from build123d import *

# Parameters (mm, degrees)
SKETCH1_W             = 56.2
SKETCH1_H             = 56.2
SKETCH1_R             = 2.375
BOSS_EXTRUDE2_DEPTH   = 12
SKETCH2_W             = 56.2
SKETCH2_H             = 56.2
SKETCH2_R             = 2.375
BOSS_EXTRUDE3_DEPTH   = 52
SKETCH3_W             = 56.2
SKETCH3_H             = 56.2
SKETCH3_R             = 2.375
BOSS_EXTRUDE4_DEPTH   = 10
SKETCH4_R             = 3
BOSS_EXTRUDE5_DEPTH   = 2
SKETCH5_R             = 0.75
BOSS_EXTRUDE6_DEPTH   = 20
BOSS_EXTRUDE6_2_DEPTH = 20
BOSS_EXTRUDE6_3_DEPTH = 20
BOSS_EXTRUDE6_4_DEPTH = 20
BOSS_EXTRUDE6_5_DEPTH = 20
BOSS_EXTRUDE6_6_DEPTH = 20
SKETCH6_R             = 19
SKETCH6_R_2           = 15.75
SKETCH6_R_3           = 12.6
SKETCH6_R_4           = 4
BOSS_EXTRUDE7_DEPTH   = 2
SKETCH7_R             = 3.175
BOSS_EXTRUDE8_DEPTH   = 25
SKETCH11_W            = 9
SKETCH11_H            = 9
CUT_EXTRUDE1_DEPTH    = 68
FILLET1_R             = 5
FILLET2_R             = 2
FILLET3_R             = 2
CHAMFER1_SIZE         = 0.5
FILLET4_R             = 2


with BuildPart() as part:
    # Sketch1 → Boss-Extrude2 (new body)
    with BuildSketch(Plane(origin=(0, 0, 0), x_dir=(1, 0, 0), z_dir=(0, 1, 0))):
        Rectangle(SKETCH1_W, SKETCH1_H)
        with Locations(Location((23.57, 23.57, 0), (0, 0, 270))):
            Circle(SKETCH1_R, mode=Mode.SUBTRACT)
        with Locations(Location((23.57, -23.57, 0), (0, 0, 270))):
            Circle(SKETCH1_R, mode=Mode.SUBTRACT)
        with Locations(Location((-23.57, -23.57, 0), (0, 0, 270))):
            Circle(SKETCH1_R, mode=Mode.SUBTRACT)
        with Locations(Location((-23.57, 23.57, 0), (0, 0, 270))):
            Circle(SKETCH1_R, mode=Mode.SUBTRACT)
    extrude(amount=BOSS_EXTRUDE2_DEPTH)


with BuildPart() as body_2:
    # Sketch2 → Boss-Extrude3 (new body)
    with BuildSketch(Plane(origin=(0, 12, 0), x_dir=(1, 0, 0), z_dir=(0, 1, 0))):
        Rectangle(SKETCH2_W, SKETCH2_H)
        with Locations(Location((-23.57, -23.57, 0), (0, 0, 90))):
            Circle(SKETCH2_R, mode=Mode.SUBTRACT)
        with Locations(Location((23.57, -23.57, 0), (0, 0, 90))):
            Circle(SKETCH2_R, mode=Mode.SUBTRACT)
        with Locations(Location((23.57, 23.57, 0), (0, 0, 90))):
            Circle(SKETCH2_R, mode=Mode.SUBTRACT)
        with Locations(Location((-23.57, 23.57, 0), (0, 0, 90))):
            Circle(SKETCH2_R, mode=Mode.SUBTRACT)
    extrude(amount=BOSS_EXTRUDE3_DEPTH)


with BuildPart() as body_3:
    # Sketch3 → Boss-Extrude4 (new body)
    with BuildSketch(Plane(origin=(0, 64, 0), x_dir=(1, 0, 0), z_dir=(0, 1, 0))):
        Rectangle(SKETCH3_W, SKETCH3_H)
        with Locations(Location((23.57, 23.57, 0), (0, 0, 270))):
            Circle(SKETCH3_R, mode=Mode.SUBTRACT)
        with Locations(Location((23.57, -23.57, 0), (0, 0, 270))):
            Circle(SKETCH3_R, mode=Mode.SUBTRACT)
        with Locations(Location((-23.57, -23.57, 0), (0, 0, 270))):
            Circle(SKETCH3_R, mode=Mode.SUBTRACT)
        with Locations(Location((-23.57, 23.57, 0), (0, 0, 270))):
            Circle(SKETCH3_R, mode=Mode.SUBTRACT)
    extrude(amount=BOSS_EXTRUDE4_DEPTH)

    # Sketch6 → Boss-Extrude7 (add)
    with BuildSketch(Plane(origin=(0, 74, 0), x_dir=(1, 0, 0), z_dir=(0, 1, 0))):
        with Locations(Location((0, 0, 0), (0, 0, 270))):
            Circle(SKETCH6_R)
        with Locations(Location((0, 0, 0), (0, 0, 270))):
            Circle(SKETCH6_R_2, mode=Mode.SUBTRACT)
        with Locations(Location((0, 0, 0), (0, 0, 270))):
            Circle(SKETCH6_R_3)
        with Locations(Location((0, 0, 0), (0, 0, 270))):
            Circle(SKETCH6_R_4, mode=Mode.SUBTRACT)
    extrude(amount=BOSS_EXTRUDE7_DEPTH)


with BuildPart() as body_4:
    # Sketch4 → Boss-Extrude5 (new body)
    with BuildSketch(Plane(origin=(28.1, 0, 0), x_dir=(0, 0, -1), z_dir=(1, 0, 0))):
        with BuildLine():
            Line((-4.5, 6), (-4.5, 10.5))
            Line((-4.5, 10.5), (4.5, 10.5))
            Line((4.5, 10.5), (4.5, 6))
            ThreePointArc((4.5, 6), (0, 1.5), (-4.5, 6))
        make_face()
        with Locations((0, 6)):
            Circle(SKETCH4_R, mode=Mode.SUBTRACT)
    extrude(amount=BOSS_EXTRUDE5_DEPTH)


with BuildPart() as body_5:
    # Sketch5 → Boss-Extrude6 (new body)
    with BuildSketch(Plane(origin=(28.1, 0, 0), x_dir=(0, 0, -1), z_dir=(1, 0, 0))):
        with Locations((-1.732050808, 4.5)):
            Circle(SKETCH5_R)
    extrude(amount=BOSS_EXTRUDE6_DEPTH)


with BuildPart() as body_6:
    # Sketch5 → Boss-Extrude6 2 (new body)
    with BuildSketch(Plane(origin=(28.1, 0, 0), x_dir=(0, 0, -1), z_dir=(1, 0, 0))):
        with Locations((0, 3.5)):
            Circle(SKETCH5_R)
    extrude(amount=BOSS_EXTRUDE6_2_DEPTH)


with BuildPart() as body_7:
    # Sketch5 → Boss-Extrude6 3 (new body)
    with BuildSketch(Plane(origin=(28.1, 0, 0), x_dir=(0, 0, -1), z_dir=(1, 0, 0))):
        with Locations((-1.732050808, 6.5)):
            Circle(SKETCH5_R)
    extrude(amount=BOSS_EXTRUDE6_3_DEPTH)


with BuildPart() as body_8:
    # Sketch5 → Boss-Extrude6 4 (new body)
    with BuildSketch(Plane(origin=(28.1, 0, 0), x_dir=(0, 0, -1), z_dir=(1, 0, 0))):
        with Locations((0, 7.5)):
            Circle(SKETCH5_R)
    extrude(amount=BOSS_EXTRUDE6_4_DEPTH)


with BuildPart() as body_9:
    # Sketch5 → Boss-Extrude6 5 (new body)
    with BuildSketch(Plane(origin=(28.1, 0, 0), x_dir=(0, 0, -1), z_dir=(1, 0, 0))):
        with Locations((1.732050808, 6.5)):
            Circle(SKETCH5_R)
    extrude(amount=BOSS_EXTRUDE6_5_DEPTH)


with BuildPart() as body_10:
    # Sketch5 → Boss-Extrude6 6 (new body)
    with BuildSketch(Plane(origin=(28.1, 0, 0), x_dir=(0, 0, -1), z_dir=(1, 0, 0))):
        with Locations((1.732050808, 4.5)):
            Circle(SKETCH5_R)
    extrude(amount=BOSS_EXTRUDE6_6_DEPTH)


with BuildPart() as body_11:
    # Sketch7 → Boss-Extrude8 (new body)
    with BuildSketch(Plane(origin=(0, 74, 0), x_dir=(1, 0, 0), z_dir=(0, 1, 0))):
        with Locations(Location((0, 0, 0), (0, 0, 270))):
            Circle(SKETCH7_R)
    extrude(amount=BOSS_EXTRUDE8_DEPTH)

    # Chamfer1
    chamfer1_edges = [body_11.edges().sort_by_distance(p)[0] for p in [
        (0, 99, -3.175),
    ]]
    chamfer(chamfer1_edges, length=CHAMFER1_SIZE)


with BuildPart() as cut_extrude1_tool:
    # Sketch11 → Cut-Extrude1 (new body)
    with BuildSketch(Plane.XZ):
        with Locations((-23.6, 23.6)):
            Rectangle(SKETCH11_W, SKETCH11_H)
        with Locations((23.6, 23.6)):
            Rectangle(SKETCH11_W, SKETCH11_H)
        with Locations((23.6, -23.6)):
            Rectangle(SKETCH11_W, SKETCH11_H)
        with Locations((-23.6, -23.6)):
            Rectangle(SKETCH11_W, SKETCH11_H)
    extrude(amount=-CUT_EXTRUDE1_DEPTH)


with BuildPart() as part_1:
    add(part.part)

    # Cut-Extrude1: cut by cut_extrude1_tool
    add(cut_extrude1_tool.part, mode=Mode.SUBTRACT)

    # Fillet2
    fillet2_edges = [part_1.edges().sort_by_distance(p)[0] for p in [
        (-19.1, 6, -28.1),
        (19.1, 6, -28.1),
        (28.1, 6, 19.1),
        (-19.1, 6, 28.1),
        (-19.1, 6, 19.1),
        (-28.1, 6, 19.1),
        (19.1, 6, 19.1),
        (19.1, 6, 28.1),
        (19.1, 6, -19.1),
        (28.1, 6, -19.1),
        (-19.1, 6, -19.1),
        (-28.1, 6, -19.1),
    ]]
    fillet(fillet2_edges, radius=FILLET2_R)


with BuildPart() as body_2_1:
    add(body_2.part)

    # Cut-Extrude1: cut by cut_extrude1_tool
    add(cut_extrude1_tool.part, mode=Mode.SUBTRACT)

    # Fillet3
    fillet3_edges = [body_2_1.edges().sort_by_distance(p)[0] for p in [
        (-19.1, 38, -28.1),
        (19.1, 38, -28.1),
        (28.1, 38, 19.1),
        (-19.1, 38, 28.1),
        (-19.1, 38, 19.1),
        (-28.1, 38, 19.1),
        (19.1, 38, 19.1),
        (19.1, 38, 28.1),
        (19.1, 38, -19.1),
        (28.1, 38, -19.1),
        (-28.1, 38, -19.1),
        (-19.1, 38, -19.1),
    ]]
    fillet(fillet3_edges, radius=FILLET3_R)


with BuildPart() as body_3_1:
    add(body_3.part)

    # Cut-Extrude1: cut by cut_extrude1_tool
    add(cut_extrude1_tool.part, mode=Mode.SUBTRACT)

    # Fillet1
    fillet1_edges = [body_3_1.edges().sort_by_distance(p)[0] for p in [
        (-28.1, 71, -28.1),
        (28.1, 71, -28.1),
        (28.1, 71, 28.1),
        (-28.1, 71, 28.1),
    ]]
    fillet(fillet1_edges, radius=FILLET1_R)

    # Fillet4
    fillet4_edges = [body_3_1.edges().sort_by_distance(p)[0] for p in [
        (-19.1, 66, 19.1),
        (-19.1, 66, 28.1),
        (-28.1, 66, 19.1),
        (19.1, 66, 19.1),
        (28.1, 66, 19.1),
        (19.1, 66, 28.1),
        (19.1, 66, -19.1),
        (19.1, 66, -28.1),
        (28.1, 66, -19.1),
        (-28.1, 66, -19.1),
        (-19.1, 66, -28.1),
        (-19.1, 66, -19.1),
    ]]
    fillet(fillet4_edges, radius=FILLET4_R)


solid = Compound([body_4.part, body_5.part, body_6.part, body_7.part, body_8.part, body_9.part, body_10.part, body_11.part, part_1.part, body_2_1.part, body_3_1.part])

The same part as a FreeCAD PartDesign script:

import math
import FreeCAD as App
import Part
import Sketcher


def edges_at(feature, points):
    """Names of the edges that pass closest to the given points."""
    edges = feature.Shape.Edges
    near = lambda p: min(range(len(edges)), key=lambda i: edges[i].distToShape(Part.Vertex(*p))[0])
    return sorted({f"Edge{near(p) + 1}" for p in points})

doc = App.newDocument("Part")
body = doc.addObject("PartDesign::Body", "Body")

# Sketch on XZ plane
sketch1 = body.newObject("Sketcher::SketchObject", "Sketch")
sketch1.AttachmentSupport = (doc.getObject("XZ_Plane"), [""])
sketch1.MapMode = "FlatFace"
sketch1.addGeometry([
    Part.LineSegment(App.Vector(-28.1, -28.1, 0), App.Vector(-28.1, 28.1, 0)),  # 0
    Part.LineSegment(App.Vector(-28.1, 28.1, 0), App.Vector(28.1, 28.1, 0)),  # 1
    Part.LineSegment(App.Vector(28.1, 28.1, 0), App.Vector(28.1, -28.1, 0)),  # 2
    Part.LineSegment(App.Vector(28.1, -28.1, 0), App.Vector(-28.1, -28.1, 0)),  # 3
    Part.Circle(App.Vector(-23.6, 23.6, 0), App.Vector(0, 0, 1), 2.4),  # 4
    Part.Circle(App.Vector(23.6, 23.6, 0), App.Vector(0, 0, 1), 2.4),  # 5
    Part.Circle(App.Vector(-23.6, -23.6, 0), App.Vector(0, 0, 1), 2.4),  # 6
    Part.Circle(App.Vector(23.6, -23.6, 0), App.Vector(0, 0, 1), 2.4),  # 7
], False)
sketch1.addConstraint([
    Sketcher.Constraint("Coincident", 0, 2, 1, 1),
    Sketcher.Constraint("Coincident", 1, 2, 2, 1),
    Sketcher.Constraint("Coincident", 2, 2, 3, 1),
    Sketcher.Constraint("Coincident", 3, 2, 0, 1),
    Sketcher.Constraint("Vertical", 0),
    Sketcher.Constraint("Horizontal", 1),
    Sketcher.Constraint("Vertical", 2),
    Sketcher.Constraint("Horizontal", 3),
    Sketcher.Constraint("Equal", 4, 5),
    Sketcher.Constraint("Equal", 5, 6),
    Sketcher.Constraint("Equal", 6, 7),
    Sketcher.Constraint("Symmetric", 5, 3, 6, 3, -1, 1),
    Sketcher.Constraint("Symmetric", 4, 3, 7, 3, -1, 1),
    Sketcher.Constraint("Symmetric", 0, 2, 2, 2, -1, 1),
    Sketcher.Constraint("Symmetric", 4, 3, 5, 3, -2),
    Sketcher.Constraint("Equal", 3, 0),
    Sketcher.Constraint("Diameter", 4, 4.75),
    Sketcher.Constraint("DistanceX", 1, 1, 1, 2, 56.2),
    Sketcher.Constraint("DistanceX", 4, 3, -1, 1, 23.57),
    Sketcher.Constraint("DistanceY", -1, 1, 4, 3, 23.57),
])
pad1 = body.newObject("PartDesign::Pad", "Pad")
pad1.Profile = sketch1
pad1.Length = 12
pad1.Reversed = True
body2 = doc.addObject("PartDesign::Body", "Body001")

# Sketch on XZ plane
sketch2 = body2.newObject("Sketcher::SketchObject", "Sketch001")
sketch2.AttachmentSupport = (doc.getObject("XZ_Plane001"), [""])
sketch2.MapMode = "FlatFace"
sketch2.AttachmentOffset = App.Placement(App.Vector(0, 0, -12), App.Rotation())
sketch2.addGeometry([
    Part.LineSegment(App.Vector(-28.1, -28.1, 0), App.Vector(-28.1, 28.1, 0)),  # 0
    Part.LineSegment(App.Vector(-28.1, 28.1, 0), App.Vector(28.1, 28.1, 0)),  # 1
    Part.LineSegment(App.Vector(28.1, 28.1, 0), App.Vector(28.1, -28.1, 0)),  # 2
    Part.LineSegment(App.Vector(28.1, -28.1, 0), App.Vector(-28.1, -28.1, 0)),  # 3
    Part.Circle(App.Vector(-23.6, 23.6, 0), App.Vector(0, 0, 1), 2.4),  # 4
    Part.Circle(App.Vector(23.6, 23.6, 0), App.Vector(0, 0, 1), 2.4),  # 5
    Part.Circle(App.Vector(-23.6, -23.6, 0), App.Vector(0, 0, 1), 2.4),  # 6
    Part.Circle(App.Vector(23.6, -23.6, 0), App.Vector(0, 0, 1), 2.4),  # 7
], False)
sketch2.addConstraint([
    Sketcher.Constraint("Coincident", 0, 2, 1, 1),
    Sketcher.Constraint("Coincident", 1, 2, 2, 1),
    Sketcher.Constraint("Coincident", 2, 2, 3, 1),
    Sketcher.Constraint("Coincident", 3, 2, 0, 1),
    Sketcher.Constraint("Vertical", 0),
    Sketcher.Constraint("Horizontal", 1),
    Sketcher.Constraint("Vertical", 2),
    Sketcher.Constraint("Horizontal", 3),
    Sketcher.Constraint("Equal", 4, 5),
    Sketcher.Constraint("Equal", 5, 6),
    Sketcher.Constraint("Equal", 6, 7),
    Sketcher.Constraint("Symmetric", 5, 3, 6, 3, -1, 1),
    Sketcher.Constraint("Symmetric", 4, 3, 7, 3, -1, 1),
    Sketcher.Constraint("Symmetric", 0, 2, 2, 2, -1, 1),
    Sketcher.Constraint("Symmetric", 4, 3, 5, 3, -2),
    Sketcher.Constraint("Equal", 3, 0),
    Sketcher.Constraint("Diameter", 4, 4.75),
    Sketcher.Constraint("DistanceX", 1, 1, 1, 2, 56.2),
    Sketcher.Constraint("DistanceX", 4, 3, -1, 1, 23.57),
    Sketcher.Constraint("DistanceY", -1, 1, 4, 3, 23.57),
])
pad2 = body2.newObject("PartDesign::Pad", "Pad001")
pad2.Profile = sketch2
pad2.Length = 52
pad2.Reversed = True
body3 = doc.addObject("PartDesign::Body", "Body002")

# Sketch on XZ plane
sketch3 = body3.newObject("Sketcher::SketchObject", "Sketch002")
sketch3.AttachmentSupport = (doc.getObject("XZ_Plane002"), [""])
sketch3.MapMode = "FlatFace"
sketch3.AttachmentOffset = App.Placement(App.Vector(0, 0, -64), App.Rotation())
sketch3.addGeometry([
    Part.LineSegment(App.Vector(-28.1, -28.1, 0), App.Vector(-28.1, 28.1, 0)),  # 0
    Part.LineSegment(App.Vector(-28.1, 28.1, 0), App.Vector(28.1, 28.1, 0)),  # 1
    Part.LineSegment(App.Vector(28.1, 28.1, 0), App.Vector(28.1, -28.1, 0)),  # 2
    Part.LineSegment(App.Vector(28.1, -28.1, 0), App.Vector(-28.1, -28.1, 0)),  # 3
    Part.Circle(App.Vector(-23.6, 23.6, 0), App.Vector(0, 0, 1), 2.4),  # 4
    Part.Circle(App.Vector(23.6, 23.6, 0), App.Vector(0, 0, 1), 2.4),  # 5
    Part.Circle(App.Vector(-23.6, -23.6, 0), App.Vector(0, 0, 1), 2.4),  # 6
    Part.Circle(App.Vector(23.6, -23.6, 0), App.Vector(0, 0, 1), 2.4),  # 7
], False)
sketch3.addConstraint([
    Sketcher.Constraint("Coincident", 0, 2, 1, 1),
    Sketcher.Constraint("Coincident", 1, 2, 2, 1),
    Sketcher.Constraint("Coincident", 2, 2, 3, 1),
    Sketcher.Constraint("Coincident", 3, 2, 0, 1),
    Sketcher.Constraint("Vertical", 0),
    Sketcher.Constraint("Horizontal", 1),
    Sketcher.Constraint("Vertical", 2),
    Sketcher.Constraint("Horizontal", 3),
    Sketcher.Constraint("Equal", 4, 5),
    Sketcher.Constraint("Equal", 5, 6),
    Sketcher.Constraint("Equal", 6, 7),
    Sketcher.Constraint("Symmetric", 5, 3, 6, 3, -1, 1),
    Sketcher.Constraint("Symmetric", 4, 3, 7, 3, -1, 1),
    Sketcher.Constraint("Symmetric", 0, 2, 2, 2, -1, 1),
    Sketcher.Constraint("Symmetric", 4, 3, 5, 3, -2),
    Sketcher.Constraint("Equal", 3, 0),
    Sketcher.Constraint("Diameter", 4, 4.75),
    Sketcher.Constraint("DistanceX", 1, 1, 1, 2, 56.2),
    Sketcher.Constraint("DistanceX", 4, 3, -1, 1, 23.57),
    Sketcher.Constraint("DistanceY", -1, 1, 4, 3, 23.57),
])
pad3 = body3.newObject("PartDesign::Pad", "Pad002")
pad3.Profile = sketch3
pad3.Length = 10
pad3.Reversed = True

# Sketch on XZ plane
sketch4 = body3.newObject("Sketcher::SketchObject", "Sketch003")
sketch4.AttachmentSupport = (doc.getObject("XZ_Plane002"), [""])
sketch4.MapMode = "FlatFace"
sketch4.AttachmentOffset = App.Placement(App.Vector(0, 0, -74), App.Rotation())
sketch4.addGeometry([
    Part.Circle(App.Vector(0, 0, 0), App.Vector(0, 0, 1), 19),
    Part.Circle(App.Vector(0, 0, 0), App.Vector(0, 0, 1), 15.8),
    Part.Circle(App.Vector(0, 0, 0), App.Vector(0, 0, 1), 12.6),
    Part.Circle(App.Vector(0, 0, 0), App.Vector(0, 0, 1), 4),
], False)
sketch4.addConstraint([
    Sketcher.Constraint("Coincident", 0, 3, -1, 1),
    Sketcher.Constraint("Coincident", 1, 3, -1, 1),
    Sketcher.Constraint("Coincident", 2, 3, -1, 1),
    Sketcher.Constraint("Coincident", 3, 3, -1, 1),
    Sketcher.Constraint("Diameter", 0, 38.0),
    Sketcher.Constraint("Diameter", 3, 8.0),
    Sketcher.Constraint("Diameter", 1, 31.5),
    Sketcher.Constraint("Diameter", 2, 25.2),
])
pad4 = body3.newObject("PartDesign::Pad", "Pad003")
pad4.Profile = sketch4
pad4.Length = 2
pad4.Reversed = True
body4 = doc.addObject("PartDesign::Body", "Body003")

# Sketch on YZ plane
sketch5 = body4.newObject("Sketcher::SketchObject", "Sketch004")
sketch5.AttachmentSupport = (doc.getObject("YZ_Plane003"), [""])
sketch5.MapMode = "FlatFace"
sketch5.AttachmentOffset = App.Placement(App.Vector(0, 0, 28.1), App.Rotation())
sketch5.addGeometry([
    Part.LineSegment(App.Vector(10.5, 4.5, 0), App.Vector(6, 4.5, 0)),  # 0
    Part.ArcOfCircle(Part.Circle(App.Vector(6, 0, 0), App.Vector(0, 0, 1), 4.5), math.radians(90), math.radians(270)),  # 1
    Part.LineSegment(App.Vector(6, -4.5, 0), App.Vector(10.5, -4.5, 0)),  # 2
    Part.LineSegment(App.Vector(10.5, -4.5, 0), App.Vector(10.5, 4.5, 0)),  # 3
    Part.Circle(App.Vector(6, 0, 0), App.Vector(0, 0, 1), 3),  # 4
], False)
sketch5.addConstraint([
    Sketcher.Constraint("Tangent", 0, 2, 1, 1),
    Sketcher.Constraint("Tangent", 1, 2, 2, 1),
    Sketcher.Constraint("Coincident", 2, 2, 3, 1),
    Sketcher.Constraint("Coincident", 3, 2, 0, 1),
    Sketcher.Constraint("Horizontal", 0),
    Sketcher.Constraint("Horizontal", 2),
    Sketcher.Constraint("Vertical", 3),
    Sketcher.Constraint("Coincident", 4, 3, 1, 3),
    Sketcher.Constraint("PointOnObject", 1, 3, -1),
    Sketcher.Constraint("Diameter", 4, 6.0),
    Sketcher.Constraint("Radius", 1, 4.5),
    Sketcher.Constraint("DistanceX", 0, 2, 0, 1, 4.5),
    Sketcher.Constraint("DistanceX", -1, 1, 1, 3, 6.0),
])
pad5 = body4.newObject("PartDesign::Pad", "Pad004")
pad5.Profile = sketch5
pad5.Length = 2
body5 = doc.addObject("PartDesign::Body", "Body004")

# Sketch on YZ plane
sketch6 = body5.newObject("Sketcher::SketchObject", "Sketch005")
sketch6.AttachmentSupport = (doc.getObject("YZ_Plane004"), [""])
sketch6.MapMode = "FlatFace"
sketch6.AttachmentOffset = App.Placement(App.Vector(0, 0, 28.1), App.Rotation())
sketch6.addGeometry(Part.Circle(App.Vector(4.5, 1.7, 0), App.Vector(0, 0, 1), 0.8), False)
sketch6.addConstraint([
    Sketcher.Constraint("Diameter", 0, 1.5),
    Sketcher.Constraint("DistanceX", -1, 1, 0, 3, 4.5),
    Sketcher.Constraint("DistanceY", -1, 1, 0, 3, 1.732051),
])
pad6 = body5.newObject("PartDesign::Pad", "Pad005")
pad6.Profile = sketch6
pad6.Length = 20
body6 = doc.addObject("PartDesign::Body", "Body005")

# Sketch on YZ plane
sketch7 = body6.newObject("Sketcher::SketchObject", "Sketch006")
sketch7.AttachmentSupport = (doc.getObject("YZ_Plane005"), [""])
sketch7.MapMode = "FlatFace"
sketch7.AttachmentOffset = App.Placement(App.Vector(0, 0, 28.1), App.Rotation())
sketch7.addGeometry(Part.Circle(App.Vector(3.5, 0, 0), App.Vector(0, 0, 1), 0.8), False)
sketch7.addConstraint([
    Sketcher.Constraint("PointOnObject", 0, 3, -1),
    Sketcher.Constraint("Diameter", 0, 1.5),
    Sketcher.Constraint("DistanceX", -1, 1, 0, 3, 3.5),
])
pad7 = body6.newObject("PartDesign::Pad", "Pad006")
pad7.Profile = sketch7
pad7.Length = 20
body7 = doc.addObject("PartDesign::Body", "Body006")

# Sketch on YZ plane
sketch8 = body7.newObject("Sketcher::SketchObject", "Sketch007")
sketch8.AttachmentSupport = (doc.getObject("YZ_Plane006"), [""])
sketch8.MapMode = "FlatFace"
sketch8.AttachmentOffset = App.Placement(App.Vector(0, 0, 28.1), App.Rotation())
sketch8.addGeometry(Part.Circle(App.Vector(6.5, 1.7, 0), App.Vector(0, 0, 1), 0.8), False)
sketch8.addConstraint([
    Sketcher.Constraint("Diameter", 0, 1.5),
    Sketcher.Constraint("DistanceX", -1, 1, 0, 3, 6.5),
    Sketcher.Constraint("DistanceY", -1, 1, 0, 3, 1.732051),
])
pad8 = body7.newObject("PartDesign::Pad", "Pad007")
pad8.Profile = sketch8
pad8.Length = 20
body8 = doc.addObject("PartDesign::Body", "Body007")

# Sketch on YZ plane
sketch9 = body8.newObject("Sketcher::SketchObject", "Sketch008")
sketch9.AttachmentSupport = (doc.getObject("YZ_Plane007"), [""])
sketch9.MapMode = "FlatFace"
sketch9.AttachmentOffset = App.Placement(App.Vector(0, 0, 28.1), App.Rotation())
sketch9.addGeometry(Part.Circle(App.Vector(7.5, 0, 0), App.Vector(0, 0, 1), 0.8), False)
sketch9.addConstraint([
    Sketcher.Constraint("PointOnObject", 0, 3, -1),
    Sketcher.Constraint("Diameter", 0, 1.5),
    Sketcher.Constraint("DistanceX", -1, 1, 0, 3, 7.5),
])
pad9 = body8.newObject("PartDesign::Pad", "Pad008")
pad9.Profile = sketch9
pad9.Length = 20
body9 = doc.addObject("PartDesign::Body", "Body008")

# Sketch on YZ plane
sketch10 = body9.newObject("Sketcher::SketchObject", "Sketch009")
sketch10.AttachmentSupport = (doc.getObject("YZ_Plane008"), [""])
sketch10.MapMode = "FlatFace"
sketch10.AttachmentOffset = App.Placement(App.Vector(0, 0, 28.1), App.Rotation())
sketch10.addGeometry(Part.Circle(App.Vector(6.5, -1.7, 0), App.Vector(0, 0, 1), 0.8), False)
sketch10.addConstraint([
    Sketcher.Constraint("Diameter", 0, 1.5),
    Sketcher.Constraint("DistanceX", -1, 1, 0, 3, 6.5),
    Sketcher.Constraint("DistanceY", 0, 3, -1, 1, 1.732051),
])
pad10 = body9.newObject("PartDesign::Pad", "Pad009")
pad10.Profile = sketch10
pad10.Length = 20
body10 = doc.addObject("PartDesign::Body", "Body009")

# Sketch on YZ plane
sketch11 = body10.newObject("Sketcher::SketchObject", "Sketch010")
sketch11.AttachmentSupport = (doc.getObject("YZ_Plane009"), [""])
sketch11.MapMode = "FlatFace"
sketch11.AttachmentOffset = App.Placement(App.Vector(0, 0, 28.1), App.Rotation())
sketch11.addGeometry(Part.Circle(App.Vector(4.5, -1.7, 0), App.Vector(0, 0, 1), 0.8), False)
sketch11.addConstraint([
    Sketcher.Constraint("Diameter", 0, 1.5),
    Sketcher.Constraint("DistanceX", -1, 1, 0, 3, 4.5),
    Sketcher.Constraint("DistanceY", 0, 3, -1, 1, 1.732051),
])
pad11 = body10.newObject("PartDesign::Pad", "Pad010")
pad11.Profile = sketch11
pad11.Length = 20
body11 = doc.addObject("PartDesign::Body", "Body010")

# Sketch on XZ plane
sketch12 = body11.newObject("Sketcher::SketchObject", "Sketch011")
sketch12.AttachmentSupport = (doc.getObject("XZ_Plane010"), [""])
sketch12.MapMode = "FlatFace"
sketch12.AttachmentOffset = App.Placement(App.Vector(0, 0, -74), App.Rotation())
sketch12.addGeometry(Part.Circle(App.Vector(0, 0, 0), App.Vector(0, 0, 1), 3.2), False)
sketch12.addConstraint([
    Sketcher.Constraint("Coincident", 0, 3, -1, 1),
    Sketcher.Constraint("Diameter", 0, 6.35),
])
pad12 = body11.newObject("PartDesign::Pad", "Pad011")
pad12.Profile = sketch12
pad12.Length = 25
pad12.Reversed = True
doc.recompute()

chamfer = body11.newObject("PartDesign::Chamfer", "Chamfer")
chamfer.Base = (pad12, edges_at(pad12, [(0, 99, -3.175)]))
chamfer.Size = 0.5
body12 = doc.addObject("PartDesign::Body", "Body011")
body12.AllowCompound = True

# Sketch on XZ plane
sketch13 = body12.newObject("Sketcher::SketchObject", "Sketch012")
sketch13.AttachmentSupport = (doc.getObject("XZ_Plane011"), [""])
sketch13.MapMode = "FlatFace"
sketch13.addGeometry([
    Part.LineSegment(App.Vector(-28, 28, 0), App.Vector(-28, 19, 0)),  # 0
    Part.LineSegment(App.Vector(-28, 19, 0), App.Vector(-19, 19, 0)),  # 1
    Part.LineSegment(App.Vector(-19, 19, 0), App.Vector(-19, 28, 0)),  # 2
    Part.LineSegment(App.Vector(-19, 28, 0), App.Vector(-28, 28, 0)),  # 3
    Part.LineSegment(App.Vector(19, 28, 0), App.Vector(19, 19, 0)),  # 4
    Part.LineSegment(App.Vector(19, 19, 0), App.Vector(28, 19, 0)),  # 5
    Part.LineSegment(App.Vector(28, 19, 0), App.Vector(28, 28, 0)),  # 6
    Part.LineSegment(App.Vector(28, 28, 0), App.Vector(19, 28, 0)),  # 7
    Part.LineSegment(App.Vector(19, -19, 0), App.Vector(19, -28, 0)),  # 8
    Part.LineSegment(App.Vector(19, -28, 0), App.Vector(28, -28, 0)),  # 9
    Part.LineSegment(App.Vector(28, -28, 0), App.Vector(28, -19, 0)),  # 10
    Part.LineSegment(App.Vector(28, -19, 0), App.Vector(19, -19, 0)),  # 11
    Part.LineSegment(App.Vector(-28, -19, 0), App.Vector(-28, -28, 0)),  # 12
    Part.LineSegment(App.Vector(-28, -28, 0), App.Vector(-19, -28, 0)),  # 13
    Part.LineSegment(App.Vector(-19, -28, 0), App.Vector(-19, -19, 0)),  # 14
    Part.LineSegment(App.Vector(-19, -19, 0), App.Vector(-28, -19, 0)),  # 15
], False)
sketch13.addConstraint([
    Sketcher.Constraint("Coincident", 0, 2, 1, 1),
    Sketcher.Constraint("Coincident", 1, 2, 2, 1),
    Sketcher.Constraint("Coincident", 2, 2, 3, 1),
    Sketcher.Constraint("Coincident", 3, 2, 0, 1),
    Sketcher.Constraint("Coincident", 4, 2, 5, 1),
    Sketcher.Constraint("Coincident", 5, 2, 6, 1),
    Sketcher.Constraint("Coincident", 6, 2, 7, 1),
    Sketcher.Constraint("Coincident", 7, 2, 4, 1),
    Sketcher.Constraint("Coincident", 8, 2, 9, 1),
    Sketcher.Constraint("Coincident", 9, 2, 10, 1),
    Sketcher.Constraint("Coincident", 10, 2, 11, 1),
    Sketcher.Constraint("Coincident", 11, 2, 8, 1),
    Sketcher.Constraint("Coincident", 12, 2, 13, 1),
    Sketcher.Constraint("Coincident", 13, 2, 14, 1),
    Sketcher.Constraint("Coincident", 14, 2, 15, 1),
    Sketcher.Constraint("Coincident", 15, 2, 12, 1),
    Sketcher.Constraint("Vertical", 0),
    Sketcher.Constraint("Horizontal", 1),
    Sketcher.Constraint("Vertical", 2),
    Sketcher.Constraint("Horizontal", 3),
    Sketcher.Constraint("Vertical", 4),
    Sketcher.Constraint("Horizontal", 5),
    Sketcher.Constraint("Vertical", 6),
    Sketcher.Constraint("Horizontal", 7),
    Sketcher.Constraint("Vertical", 8),
    Sketcher.Constraint("Horizontal", 9),
    Sketcher.Constraint("Vertical", 10),
    Sketcher.Constraint("Horizontal", 11),
    Sketcher.Constraint("Vertical", 12),
    Sketcher.Constraint("Horizontal", 13),
    Sketcher.Constraint("Vertical", 14),
    Sketcher.Constraint("Horizontal", 15),
    Sketcher.Constraint("Symmetric", 2, 2, 8, 2, -1, 1),
    Sketcher.Constraint("Symmetric", 0, 2, 10, 2, -1, 1),
    Sketcher.Constraint("Symmetric", 6, 2, 12, 2, -1, 1),
    Sketcher.Constraint("Symmetric", 4, 2, 14, 2, -1, 1),
    Sketcher.Constraint("Symmetric", 1, 2, 4, 2, -2),
    Sketcher.Constraint("Symmetric", 3, 2, 6, 2, -2),
    Sketcher.Constraint("Equal", 15, 0),
    Sketcher.Constraint("DistanceX", 1, 1, 1, 2, 9.0),
    Sketcher.Constraint("DistanceX", 0, 2, -1, 1, 28.1),
    Sketcher.Constraint("DistanceY", -1, 1, 0, 2, 19.1),
])
pad13 = body12.newObject("PartDesign::Pad", "Pad012")
pad13.Profile = sketch13
pad13.Length = 68
pad13.Reversed = True
doc.recompute()

body13 = doc.addObject("PartDesign::Body", "Body012")
body13.BaseFeature = body12
boolean = body.newObject("PartDesign::Boolean", "Boolean")
boolean.Type = "Cut"
boolean.addObjects([body13])
doc.recompute()

fillet = body.newObject("PartDesign::Fillet", "Fillet")
fillet.Base = (boolean, edges_at(boolean, [
    (-19.1, 6, -28.1),
    (19.1, 6, -28.1),
    (28.1, 6, 19.1),
    (-19.1, 6, 28.1),
    (-19.1, 6, 19.1),
    (-28.1, 6, 19.1),
    (19.1, 6, 19.1),
    (19.1, 6, 28.1),
    (19.1, 6, -19.1),
    (28.1, 6, -19.1),
    (-19.1, 6, -19.1),
    (-28.1, 6, -19.1),
]))
fillet.Radius = 2
doc.recompute()

body14 = doc.addObject("PartDesign::Body", "Body013")
body14.BaseFeature = body12
boolean2 = body2.newObject("PartDesign::Boolean", "Boolean001")
boolean2.Type = "Cut"
boolean2.addObjects([body14])
doc.recompute()

fillet2 = body2.newObject("PartDesign::Fillet", "Fillet001")
fillet2.Base = (boolean2, edges_at(boolean2, [
    (-19.1, 38, -28.1),
    (19.1, 38, -28.1),
    (28.1, 38, 19.1),
    (-19.1, 38, 28.1),
    (-19.1, 38, 19.1),
    (-28.1, 38, 19.1),
    (19.1, 38, 19.1),
    (19.1, 38, 28.1),
    (19.1, 38, -19.1),
    (28.1, 38, -19.1),
    (-28.1, 38, -19.1),
    (-19.1, 38, -19.1),
]))
fillet2.Radius = 2
doc.recompute()

boolean3 = body3.newObject("PartDesign::Boolean", "Boolean002")
boolean3.Type = "Cut"
boolean3.addObjects([body12])
doc.recompute()

fillet3 = body3.newObject("PartDesign::Fillet", "Fillet002")
fillet3.Base = (boolean3, edges_at(boolean3, [
    (-28.1, 71, -28.1),
    (28.1, 71, -28.1),
    (28.1, 71, 28.1),
    (-28.1, 71, 28.1),
]))
fillet3.Radius = 5
doc.recompute()

fillet4 = body3.newObject("PartDesign::Fillet", "Fillet003")
fillet4.Base = (fillet3, edges_at(fillet3, [
    (-19.1, 66, 19.1),
    (-19.1, 66, 28.1),
    (-28.1, 66, 19.1),
    (19.1, 66, 19.1),
    (28.1, 66, 19.1),
    (19.1, 66, 28.1),
    (19.1, 66, -19.1),
    (19.1, 66, -28.1),
    (28.1, 66, -19.1),
    (-28.1, 66, -19.1),
    (-19.1, 66, -28.1),
    (-19.1, 66, -19.1),
]))
fillet4.Radius = 2

doc.recompute()
